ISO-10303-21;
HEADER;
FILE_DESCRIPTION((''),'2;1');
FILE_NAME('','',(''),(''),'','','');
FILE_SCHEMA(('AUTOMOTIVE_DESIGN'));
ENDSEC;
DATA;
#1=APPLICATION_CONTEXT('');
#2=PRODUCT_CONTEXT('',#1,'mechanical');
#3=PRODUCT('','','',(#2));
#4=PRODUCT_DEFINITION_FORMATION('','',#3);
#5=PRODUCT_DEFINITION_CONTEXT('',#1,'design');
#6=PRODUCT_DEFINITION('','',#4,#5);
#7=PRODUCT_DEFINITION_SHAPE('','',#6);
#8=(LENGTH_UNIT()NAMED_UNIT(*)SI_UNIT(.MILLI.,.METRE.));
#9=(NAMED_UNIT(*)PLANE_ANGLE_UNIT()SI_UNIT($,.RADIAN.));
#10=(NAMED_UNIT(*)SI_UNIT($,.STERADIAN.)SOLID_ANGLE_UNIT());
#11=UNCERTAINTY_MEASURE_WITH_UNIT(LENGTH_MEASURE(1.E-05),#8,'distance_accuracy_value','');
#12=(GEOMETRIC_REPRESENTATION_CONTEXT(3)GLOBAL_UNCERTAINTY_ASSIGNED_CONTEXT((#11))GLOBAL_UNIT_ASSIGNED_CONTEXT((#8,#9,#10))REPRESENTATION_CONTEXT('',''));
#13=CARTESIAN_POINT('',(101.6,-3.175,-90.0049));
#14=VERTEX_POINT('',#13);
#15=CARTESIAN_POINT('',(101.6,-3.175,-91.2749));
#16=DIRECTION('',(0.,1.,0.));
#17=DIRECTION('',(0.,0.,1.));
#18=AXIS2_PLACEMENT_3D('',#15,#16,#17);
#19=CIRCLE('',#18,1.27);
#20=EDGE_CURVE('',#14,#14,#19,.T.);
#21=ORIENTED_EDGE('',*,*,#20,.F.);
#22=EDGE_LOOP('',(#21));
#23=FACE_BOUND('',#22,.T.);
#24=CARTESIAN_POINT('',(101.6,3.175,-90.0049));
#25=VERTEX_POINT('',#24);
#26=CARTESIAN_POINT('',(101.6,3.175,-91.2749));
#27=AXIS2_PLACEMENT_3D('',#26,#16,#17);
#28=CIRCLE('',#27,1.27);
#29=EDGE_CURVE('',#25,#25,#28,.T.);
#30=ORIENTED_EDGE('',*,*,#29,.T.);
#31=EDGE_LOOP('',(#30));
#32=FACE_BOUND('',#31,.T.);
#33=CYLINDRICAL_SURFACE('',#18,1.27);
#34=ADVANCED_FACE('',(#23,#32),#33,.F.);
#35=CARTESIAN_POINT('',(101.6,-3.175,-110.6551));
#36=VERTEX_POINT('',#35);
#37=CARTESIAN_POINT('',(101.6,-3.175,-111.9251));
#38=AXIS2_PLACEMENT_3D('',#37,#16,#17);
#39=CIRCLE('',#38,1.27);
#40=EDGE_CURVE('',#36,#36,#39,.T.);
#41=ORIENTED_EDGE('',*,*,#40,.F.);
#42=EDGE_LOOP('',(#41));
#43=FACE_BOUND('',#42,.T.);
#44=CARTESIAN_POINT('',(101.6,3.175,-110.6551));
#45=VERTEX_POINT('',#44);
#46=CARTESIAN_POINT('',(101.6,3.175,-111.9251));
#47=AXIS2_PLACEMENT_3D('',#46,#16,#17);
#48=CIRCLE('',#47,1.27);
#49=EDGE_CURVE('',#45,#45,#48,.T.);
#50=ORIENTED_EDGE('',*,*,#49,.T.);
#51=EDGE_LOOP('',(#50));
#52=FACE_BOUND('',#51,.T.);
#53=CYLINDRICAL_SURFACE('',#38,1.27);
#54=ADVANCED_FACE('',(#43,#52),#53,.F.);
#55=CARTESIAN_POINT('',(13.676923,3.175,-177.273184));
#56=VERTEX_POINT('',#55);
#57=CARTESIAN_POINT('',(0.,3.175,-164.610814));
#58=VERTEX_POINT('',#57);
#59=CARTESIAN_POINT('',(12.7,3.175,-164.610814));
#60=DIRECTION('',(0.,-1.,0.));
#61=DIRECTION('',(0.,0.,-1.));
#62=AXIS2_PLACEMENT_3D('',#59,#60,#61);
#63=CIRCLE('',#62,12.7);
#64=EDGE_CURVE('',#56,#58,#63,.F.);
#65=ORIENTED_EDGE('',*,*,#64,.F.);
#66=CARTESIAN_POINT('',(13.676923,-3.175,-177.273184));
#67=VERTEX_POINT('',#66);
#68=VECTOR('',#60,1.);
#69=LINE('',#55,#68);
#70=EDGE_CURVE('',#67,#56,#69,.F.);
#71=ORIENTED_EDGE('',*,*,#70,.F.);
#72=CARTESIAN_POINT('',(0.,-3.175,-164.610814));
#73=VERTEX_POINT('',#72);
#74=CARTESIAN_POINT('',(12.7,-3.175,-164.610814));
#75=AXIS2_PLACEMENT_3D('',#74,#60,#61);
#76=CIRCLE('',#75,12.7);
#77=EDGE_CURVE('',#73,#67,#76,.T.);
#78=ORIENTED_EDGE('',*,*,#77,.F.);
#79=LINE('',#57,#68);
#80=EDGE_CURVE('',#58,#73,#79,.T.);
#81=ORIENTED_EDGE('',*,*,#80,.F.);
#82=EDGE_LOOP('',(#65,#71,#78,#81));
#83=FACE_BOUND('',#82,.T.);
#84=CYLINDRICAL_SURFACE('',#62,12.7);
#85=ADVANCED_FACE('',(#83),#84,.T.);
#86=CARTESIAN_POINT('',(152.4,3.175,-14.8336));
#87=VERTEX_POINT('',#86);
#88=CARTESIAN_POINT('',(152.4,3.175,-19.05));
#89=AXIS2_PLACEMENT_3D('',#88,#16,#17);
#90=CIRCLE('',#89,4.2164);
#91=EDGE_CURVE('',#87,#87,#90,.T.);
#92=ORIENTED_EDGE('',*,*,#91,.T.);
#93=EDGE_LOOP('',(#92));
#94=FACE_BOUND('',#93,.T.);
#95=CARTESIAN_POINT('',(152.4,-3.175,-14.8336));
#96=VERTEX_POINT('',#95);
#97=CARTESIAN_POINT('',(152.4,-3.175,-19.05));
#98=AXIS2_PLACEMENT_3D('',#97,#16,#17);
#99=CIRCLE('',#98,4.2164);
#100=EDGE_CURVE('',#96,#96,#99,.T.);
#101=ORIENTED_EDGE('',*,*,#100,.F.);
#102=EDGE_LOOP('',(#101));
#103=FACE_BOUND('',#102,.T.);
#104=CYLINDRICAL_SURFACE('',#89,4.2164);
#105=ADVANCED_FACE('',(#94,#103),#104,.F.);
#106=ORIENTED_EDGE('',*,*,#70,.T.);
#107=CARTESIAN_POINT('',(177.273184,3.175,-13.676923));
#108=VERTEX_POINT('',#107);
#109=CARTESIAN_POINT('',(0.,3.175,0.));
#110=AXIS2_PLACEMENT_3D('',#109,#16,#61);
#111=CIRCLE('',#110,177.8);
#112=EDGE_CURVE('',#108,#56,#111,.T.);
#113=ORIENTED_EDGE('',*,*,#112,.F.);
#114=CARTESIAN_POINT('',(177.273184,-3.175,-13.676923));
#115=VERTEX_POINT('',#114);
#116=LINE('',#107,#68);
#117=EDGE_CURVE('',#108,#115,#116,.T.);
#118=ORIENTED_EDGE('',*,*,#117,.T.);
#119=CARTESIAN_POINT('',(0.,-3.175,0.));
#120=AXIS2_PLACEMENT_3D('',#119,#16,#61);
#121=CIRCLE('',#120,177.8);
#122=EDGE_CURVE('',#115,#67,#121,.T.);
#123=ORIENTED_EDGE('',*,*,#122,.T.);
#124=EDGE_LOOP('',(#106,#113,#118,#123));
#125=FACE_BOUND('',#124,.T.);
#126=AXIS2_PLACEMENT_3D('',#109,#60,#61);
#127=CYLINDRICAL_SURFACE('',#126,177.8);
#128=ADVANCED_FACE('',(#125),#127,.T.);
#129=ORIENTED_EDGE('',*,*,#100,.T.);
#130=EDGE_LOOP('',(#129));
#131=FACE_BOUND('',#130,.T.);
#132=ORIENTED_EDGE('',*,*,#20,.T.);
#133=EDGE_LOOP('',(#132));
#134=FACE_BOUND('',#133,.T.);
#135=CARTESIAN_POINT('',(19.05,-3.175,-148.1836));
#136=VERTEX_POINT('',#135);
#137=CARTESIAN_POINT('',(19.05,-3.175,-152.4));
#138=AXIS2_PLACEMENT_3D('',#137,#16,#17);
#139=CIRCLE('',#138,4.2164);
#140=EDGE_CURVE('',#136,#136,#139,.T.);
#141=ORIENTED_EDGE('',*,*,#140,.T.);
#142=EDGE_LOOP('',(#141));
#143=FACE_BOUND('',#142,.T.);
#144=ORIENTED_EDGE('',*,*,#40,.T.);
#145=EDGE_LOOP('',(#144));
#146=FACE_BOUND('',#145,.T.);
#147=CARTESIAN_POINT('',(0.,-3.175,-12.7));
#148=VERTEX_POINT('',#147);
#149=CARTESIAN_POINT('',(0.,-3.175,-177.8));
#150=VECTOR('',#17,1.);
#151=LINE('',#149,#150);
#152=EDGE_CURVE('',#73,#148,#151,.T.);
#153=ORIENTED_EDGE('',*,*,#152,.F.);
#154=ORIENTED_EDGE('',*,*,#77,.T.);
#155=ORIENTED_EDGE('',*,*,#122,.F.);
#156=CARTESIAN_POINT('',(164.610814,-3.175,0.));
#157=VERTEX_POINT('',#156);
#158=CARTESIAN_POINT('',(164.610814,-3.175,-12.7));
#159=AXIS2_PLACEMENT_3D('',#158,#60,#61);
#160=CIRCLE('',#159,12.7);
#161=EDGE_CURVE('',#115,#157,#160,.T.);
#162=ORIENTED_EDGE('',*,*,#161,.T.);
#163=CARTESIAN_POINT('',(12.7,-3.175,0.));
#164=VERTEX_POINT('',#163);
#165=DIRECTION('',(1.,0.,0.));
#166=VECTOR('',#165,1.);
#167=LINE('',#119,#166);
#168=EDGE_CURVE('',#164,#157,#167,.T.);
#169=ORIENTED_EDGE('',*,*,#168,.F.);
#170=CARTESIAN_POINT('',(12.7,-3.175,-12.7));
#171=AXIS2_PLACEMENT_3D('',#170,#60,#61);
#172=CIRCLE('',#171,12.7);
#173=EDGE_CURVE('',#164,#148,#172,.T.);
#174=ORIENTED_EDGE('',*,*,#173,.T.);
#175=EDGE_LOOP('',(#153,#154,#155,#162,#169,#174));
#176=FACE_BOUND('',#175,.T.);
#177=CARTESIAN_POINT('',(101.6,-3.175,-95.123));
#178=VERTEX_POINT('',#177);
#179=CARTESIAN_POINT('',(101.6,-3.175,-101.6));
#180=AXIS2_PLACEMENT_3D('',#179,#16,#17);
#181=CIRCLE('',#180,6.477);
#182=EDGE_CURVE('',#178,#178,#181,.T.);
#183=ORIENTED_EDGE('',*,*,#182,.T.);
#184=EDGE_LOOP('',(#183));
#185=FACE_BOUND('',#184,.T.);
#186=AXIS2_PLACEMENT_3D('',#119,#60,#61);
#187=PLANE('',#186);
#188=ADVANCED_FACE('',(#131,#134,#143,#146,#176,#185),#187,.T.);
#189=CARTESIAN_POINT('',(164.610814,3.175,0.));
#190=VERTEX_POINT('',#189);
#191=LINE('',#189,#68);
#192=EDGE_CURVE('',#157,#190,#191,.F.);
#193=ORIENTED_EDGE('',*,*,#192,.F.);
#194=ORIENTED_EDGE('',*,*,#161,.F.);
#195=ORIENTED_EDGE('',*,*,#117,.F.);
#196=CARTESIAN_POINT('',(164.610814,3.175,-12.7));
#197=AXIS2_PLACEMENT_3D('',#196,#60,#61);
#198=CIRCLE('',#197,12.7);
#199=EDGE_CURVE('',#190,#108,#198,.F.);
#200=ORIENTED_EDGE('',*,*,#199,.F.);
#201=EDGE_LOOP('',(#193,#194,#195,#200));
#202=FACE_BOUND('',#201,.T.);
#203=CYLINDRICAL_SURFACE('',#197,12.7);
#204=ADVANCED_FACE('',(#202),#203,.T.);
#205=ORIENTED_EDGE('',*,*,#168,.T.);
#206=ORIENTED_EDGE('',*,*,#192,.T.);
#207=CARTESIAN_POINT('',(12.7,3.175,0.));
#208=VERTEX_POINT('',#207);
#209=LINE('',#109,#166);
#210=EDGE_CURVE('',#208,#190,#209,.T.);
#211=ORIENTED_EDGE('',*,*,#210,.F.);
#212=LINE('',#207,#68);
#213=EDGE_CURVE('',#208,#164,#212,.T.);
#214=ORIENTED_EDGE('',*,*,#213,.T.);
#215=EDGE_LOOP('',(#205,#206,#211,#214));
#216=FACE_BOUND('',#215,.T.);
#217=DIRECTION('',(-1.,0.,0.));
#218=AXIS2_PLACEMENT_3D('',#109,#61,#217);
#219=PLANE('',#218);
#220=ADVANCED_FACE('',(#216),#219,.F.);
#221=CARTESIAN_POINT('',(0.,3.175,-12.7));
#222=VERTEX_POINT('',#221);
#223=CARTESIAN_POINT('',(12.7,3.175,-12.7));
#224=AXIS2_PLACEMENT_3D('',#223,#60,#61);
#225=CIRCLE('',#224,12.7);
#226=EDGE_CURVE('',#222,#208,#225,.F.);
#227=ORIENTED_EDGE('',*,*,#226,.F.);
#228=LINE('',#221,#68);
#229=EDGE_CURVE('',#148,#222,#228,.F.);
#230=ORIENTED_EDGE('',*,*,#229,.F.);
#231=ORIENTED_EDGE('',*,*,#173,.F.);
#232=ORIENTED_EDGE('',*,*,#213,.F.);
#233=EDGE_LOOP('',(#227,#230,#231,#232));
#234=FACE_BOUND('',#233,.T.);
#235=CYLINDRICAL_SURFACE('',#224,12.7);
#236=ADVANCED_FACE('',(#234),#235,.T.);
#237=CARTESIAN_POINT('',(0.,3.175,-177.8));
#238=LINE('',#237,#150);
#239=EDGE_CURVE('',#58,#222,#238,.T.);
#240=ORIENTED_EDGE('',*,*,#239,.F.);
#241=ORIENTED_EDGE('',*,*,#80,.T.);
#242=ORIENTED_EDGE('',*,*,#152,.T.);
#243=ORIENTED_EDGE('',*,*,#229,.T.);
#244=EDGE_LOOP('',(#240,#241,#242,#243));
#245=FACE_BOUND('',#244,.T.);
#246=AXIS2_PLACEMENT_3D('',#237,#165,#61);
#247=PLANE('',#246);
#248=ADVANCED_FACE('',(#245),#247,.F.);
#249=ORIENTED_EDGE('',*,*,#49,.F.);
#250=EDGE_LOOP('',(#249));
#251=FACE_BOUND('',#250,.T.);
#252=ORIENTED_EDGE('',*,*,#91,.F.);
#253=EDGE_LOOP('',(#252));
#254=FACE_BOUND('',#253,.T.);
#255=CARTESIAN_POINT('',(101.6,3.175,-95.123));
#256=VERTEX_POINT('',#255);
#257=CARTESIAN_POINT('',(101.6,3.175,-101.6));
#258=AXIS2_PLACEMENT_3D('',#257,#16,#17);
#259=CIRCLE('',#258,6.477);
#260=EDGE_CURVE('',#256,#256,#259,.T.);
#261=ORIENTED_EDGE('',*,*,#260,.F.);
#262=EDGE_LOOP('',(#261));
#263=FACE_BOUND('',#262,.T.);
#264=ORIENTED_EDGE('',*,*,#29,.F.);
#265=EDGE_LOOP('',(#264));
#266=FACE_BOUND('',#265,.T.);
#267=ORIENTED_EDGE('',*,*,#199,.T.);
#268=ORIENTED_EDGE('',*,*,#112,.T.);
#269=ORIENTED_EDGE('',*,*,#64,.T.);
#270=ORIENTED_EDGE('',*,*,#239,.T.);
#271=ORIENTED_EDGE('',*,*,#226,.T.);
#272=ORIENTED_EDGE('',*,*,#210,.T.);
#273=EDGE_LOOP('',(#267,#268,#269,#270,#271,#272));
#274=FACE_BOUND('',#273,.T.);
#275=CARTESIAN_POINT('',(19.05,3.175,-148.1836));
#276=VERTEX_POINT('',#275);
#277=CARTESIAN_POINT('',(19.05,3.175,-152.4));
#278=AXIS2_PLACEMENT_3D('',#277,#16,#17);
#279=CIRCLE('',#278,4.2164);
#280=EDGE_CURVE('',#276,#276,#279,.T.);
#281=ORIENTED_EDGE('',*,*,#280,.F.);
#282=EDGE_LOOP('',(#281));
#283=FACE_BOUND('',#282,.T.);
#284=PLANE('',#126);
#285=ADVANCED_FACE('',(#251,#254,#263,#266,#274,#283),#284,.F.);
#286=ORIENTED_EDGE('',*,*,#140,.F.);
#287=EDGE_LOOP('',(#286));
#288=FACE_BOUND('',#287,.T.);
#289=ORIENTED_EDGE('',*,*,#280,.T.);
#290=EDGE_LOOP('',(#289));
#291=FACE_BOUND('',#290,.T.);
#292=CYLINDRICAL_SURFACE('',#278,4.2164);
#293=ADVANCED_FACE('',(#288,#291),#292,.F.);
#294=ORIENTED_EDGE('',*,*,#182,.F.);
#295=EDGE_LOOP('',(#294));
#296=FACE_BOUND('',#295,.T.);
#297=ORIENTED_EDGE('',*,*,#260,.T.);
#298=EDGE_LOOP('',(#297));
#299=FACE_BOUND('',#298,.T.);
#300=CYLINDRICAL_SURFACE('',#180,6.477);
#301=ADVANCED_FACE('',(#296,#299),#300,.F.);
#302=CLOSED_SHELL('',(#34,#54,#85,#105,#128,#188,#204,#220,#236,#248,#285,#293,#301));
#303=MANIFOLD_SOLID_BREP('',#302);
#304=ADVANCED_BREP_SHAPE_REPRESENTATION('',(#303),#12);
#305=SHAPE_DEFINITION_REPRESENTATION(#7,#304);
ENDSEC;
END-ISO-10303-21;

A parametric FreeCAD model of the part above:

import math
import FreeCAD as App
import Part
import Sketcher

V = App.Vector
Q = App.Units.Quantity


def edges_at(feature, points):
    """Names of the edges that pass closest to the given points."""
    edges = feature.Shape.Edges
    near = lambda p: min(range(len(edges)), key=lambda i: edges[i].distToShape(Part.Vertex(*p))[0])
    return sorted({f"Edge{near(p) + 1}" for p in points})

doc = App.newDocument("Part")
body = doc.addObject("PartDesign::Body", "Body")

# Sketch on XZ plane
sketch1 = body.newObject("Sketcher::SketchObject", "Sketch")
sketch1.AttachmentSupport = (doc.getObject("XZ_Plane"), [""])
sketch1.MapMode = "FlatFace"
sketch1.addGeometry(Part.LineSegment(V(0, -178, 0), V(0, 0, 0)), False)
sketch1.addGeometry(Part.LineSegment(V(0, 0, 0), V(178, 0, 0)), False)
sketch1.addGeometry(Part.ArcOfCircle(Part.Circle(V(0, 0, 0), V(0, 0, 1), 178), math.radians(-90), math.radians(0)), False)
sketch1.addConstraint(Sketcher.Constraint("Coincident", 0, 2, 1, 1))
sketch1.addConstraint(Sketcher.Constraint("Coincident", 1, 2, 2, 2))
sketch1.addConstraint(Sketcher.Constraint("Coincident", 2, 1, 0, 1))
sketch1.addConstraint(Sketcher.Constraint("Vertical", 0))
sketch1.addConstraint(Sketcher.Constraint("Horizontal", 1))
sketch1.addConstraint(Sketcher.Constraint("Coincident", 2, 3, -1, 1))
sketch1.addConstraint(Sketcher.Constraint("Coincident", 0, 2, -1, 1))
sketch1.addConstraint(Sketcher.Constraint("Radius", 2, Q("7 in")))
pad1 = body.newObject("PartDesign::Pad", "Pad")
pad1.Profile = sketch1
pad1.Length = Q("0.25 in")
pad1.Midplane = True

# Sketch on XZ plane
sketch2 = body.newObject("Sketcher::SketchObject", "Sketch001")
sketch2.AttachmentSupport = (doc.getObject("XZ_Plane"), [""])
sketch2.MapMode = "FlatFace"
sketch2.AttachmentOffset = App.Placement(V(0, 0, -0.125 * 25.4), App.Rotation())
sketch2.addGeometry(Part.Circle(V(101.6, -101.6, 0), V(0, 0, 1), 6.5), False)
sketch2.addGeometry(Part.Circle(V(101.6, -91.3, 0), V(0, 0, 1), 1.3), False)
sketch2.addGeometry(Part.Circle(V(101.6, -111.9, 0), V(0, 0, 1), 1.3), False)
sketch2.addConstraint(Sketcher.Constraint("Equal", 1, 2))
sketch2.addConstraint(Sketcher.Constraint("Vertical", 0, 3, 1, 3))
sketch2.addConstraint(Sketcher.Constraint("Vertical", 1, 3, 2, 3))
sketch2.addConstraint(Sketcher.Constraint("Diameter", 1, Q("0.1 in")))
sketch2.addConstraint(Sketcher.Constraint("Diameter", 0, Q("0.51 in")))
sketch2.addConstraint(Sketcher.Constraint("DistanceX", -1, 1, 0, 3, Q("4 in")))
sketch2.addConstraint(Sketcher.Constraint("DistanceY", 0, 3, -1, 1, Q("4 in")))
sketch2.addConstraint(Sketcher.Constraint("DistanceY", 2, 3, 1, 3, Q("0.813 in")))
sketch2.addConstraint(Sketcher.Constraint("DistanceY", 1, 3, -1, 1, Q("3.5935 in")))
pocket1 = body.newObject("PartDesign::Pocket", "Pocket")
pocket1.Profile = sketch2
pocket1.Type = "ThroughAll"
pocket1.Reversed = True

# Sketch on XZ plane
sketch3 = body.newObject("Sketcher::SketchObject", "Sketch002")
sketch3.AttachmentSupport = (doc.getObject("XZ_Plane"), [""])
sketch3.MapMode = "FlatFace"
sketch3.AttachmentOffset = App.Placement(V(0, 0, -0.125 * 25.4), App.Rotation())
sketch3.addGeometry(Part.Circle(V(19.1, -152.4, 0), V(0, 0, 1), 4.2), False)
sketch3.addGeometry(Part.Circle(V(152.4, -19.1, 0), V(0, 0, 1), 4.2), False)
sketch3.addConstraint(Sketcher.Constraint("Equal", 0, 1))
sketch3.addConstraint(Sketcher.Constraint("Diameter", 0, Q("0.332 in")))
sketch3.addConstraint(Sketcher.Constraint("DistanceY", 0, 3, -1, 1, Q("6 in")))
sketch3.addConstraint(Sketcher.Constraint("DistanceX", -1, 1, 1, 3, Q("6 in")))
sketch3.addConstraint(Sketcher.Constraint("DistanceX", -1, 1, 0, 3, Q("0.75 in")))
sketch3.addConstraint(Sketcher.Constraint("DistanceY", 1, 3, -1, 1, Q("0.75 in")))
doc.recompute()
hole = body.newObject("PartDesign::Hole", "Hole")
hole.Profile = sketch3
hole.ThreadType = "None"
hole.Diameter = Q("0.332 in")
hole.DepthType = "ThroughAll"
hole.Reversed = True
doc.recompute()

fillet = body.newObject("PartDesign::Fillet", "Fillet")
fillet.Base = (hole, edges_at(hole, [(0, 0, 0), (0, 0, -177.8), (177.8, 0, 0)]))
fillet.Radius = Q("0.5 in")

doc.recompute()
